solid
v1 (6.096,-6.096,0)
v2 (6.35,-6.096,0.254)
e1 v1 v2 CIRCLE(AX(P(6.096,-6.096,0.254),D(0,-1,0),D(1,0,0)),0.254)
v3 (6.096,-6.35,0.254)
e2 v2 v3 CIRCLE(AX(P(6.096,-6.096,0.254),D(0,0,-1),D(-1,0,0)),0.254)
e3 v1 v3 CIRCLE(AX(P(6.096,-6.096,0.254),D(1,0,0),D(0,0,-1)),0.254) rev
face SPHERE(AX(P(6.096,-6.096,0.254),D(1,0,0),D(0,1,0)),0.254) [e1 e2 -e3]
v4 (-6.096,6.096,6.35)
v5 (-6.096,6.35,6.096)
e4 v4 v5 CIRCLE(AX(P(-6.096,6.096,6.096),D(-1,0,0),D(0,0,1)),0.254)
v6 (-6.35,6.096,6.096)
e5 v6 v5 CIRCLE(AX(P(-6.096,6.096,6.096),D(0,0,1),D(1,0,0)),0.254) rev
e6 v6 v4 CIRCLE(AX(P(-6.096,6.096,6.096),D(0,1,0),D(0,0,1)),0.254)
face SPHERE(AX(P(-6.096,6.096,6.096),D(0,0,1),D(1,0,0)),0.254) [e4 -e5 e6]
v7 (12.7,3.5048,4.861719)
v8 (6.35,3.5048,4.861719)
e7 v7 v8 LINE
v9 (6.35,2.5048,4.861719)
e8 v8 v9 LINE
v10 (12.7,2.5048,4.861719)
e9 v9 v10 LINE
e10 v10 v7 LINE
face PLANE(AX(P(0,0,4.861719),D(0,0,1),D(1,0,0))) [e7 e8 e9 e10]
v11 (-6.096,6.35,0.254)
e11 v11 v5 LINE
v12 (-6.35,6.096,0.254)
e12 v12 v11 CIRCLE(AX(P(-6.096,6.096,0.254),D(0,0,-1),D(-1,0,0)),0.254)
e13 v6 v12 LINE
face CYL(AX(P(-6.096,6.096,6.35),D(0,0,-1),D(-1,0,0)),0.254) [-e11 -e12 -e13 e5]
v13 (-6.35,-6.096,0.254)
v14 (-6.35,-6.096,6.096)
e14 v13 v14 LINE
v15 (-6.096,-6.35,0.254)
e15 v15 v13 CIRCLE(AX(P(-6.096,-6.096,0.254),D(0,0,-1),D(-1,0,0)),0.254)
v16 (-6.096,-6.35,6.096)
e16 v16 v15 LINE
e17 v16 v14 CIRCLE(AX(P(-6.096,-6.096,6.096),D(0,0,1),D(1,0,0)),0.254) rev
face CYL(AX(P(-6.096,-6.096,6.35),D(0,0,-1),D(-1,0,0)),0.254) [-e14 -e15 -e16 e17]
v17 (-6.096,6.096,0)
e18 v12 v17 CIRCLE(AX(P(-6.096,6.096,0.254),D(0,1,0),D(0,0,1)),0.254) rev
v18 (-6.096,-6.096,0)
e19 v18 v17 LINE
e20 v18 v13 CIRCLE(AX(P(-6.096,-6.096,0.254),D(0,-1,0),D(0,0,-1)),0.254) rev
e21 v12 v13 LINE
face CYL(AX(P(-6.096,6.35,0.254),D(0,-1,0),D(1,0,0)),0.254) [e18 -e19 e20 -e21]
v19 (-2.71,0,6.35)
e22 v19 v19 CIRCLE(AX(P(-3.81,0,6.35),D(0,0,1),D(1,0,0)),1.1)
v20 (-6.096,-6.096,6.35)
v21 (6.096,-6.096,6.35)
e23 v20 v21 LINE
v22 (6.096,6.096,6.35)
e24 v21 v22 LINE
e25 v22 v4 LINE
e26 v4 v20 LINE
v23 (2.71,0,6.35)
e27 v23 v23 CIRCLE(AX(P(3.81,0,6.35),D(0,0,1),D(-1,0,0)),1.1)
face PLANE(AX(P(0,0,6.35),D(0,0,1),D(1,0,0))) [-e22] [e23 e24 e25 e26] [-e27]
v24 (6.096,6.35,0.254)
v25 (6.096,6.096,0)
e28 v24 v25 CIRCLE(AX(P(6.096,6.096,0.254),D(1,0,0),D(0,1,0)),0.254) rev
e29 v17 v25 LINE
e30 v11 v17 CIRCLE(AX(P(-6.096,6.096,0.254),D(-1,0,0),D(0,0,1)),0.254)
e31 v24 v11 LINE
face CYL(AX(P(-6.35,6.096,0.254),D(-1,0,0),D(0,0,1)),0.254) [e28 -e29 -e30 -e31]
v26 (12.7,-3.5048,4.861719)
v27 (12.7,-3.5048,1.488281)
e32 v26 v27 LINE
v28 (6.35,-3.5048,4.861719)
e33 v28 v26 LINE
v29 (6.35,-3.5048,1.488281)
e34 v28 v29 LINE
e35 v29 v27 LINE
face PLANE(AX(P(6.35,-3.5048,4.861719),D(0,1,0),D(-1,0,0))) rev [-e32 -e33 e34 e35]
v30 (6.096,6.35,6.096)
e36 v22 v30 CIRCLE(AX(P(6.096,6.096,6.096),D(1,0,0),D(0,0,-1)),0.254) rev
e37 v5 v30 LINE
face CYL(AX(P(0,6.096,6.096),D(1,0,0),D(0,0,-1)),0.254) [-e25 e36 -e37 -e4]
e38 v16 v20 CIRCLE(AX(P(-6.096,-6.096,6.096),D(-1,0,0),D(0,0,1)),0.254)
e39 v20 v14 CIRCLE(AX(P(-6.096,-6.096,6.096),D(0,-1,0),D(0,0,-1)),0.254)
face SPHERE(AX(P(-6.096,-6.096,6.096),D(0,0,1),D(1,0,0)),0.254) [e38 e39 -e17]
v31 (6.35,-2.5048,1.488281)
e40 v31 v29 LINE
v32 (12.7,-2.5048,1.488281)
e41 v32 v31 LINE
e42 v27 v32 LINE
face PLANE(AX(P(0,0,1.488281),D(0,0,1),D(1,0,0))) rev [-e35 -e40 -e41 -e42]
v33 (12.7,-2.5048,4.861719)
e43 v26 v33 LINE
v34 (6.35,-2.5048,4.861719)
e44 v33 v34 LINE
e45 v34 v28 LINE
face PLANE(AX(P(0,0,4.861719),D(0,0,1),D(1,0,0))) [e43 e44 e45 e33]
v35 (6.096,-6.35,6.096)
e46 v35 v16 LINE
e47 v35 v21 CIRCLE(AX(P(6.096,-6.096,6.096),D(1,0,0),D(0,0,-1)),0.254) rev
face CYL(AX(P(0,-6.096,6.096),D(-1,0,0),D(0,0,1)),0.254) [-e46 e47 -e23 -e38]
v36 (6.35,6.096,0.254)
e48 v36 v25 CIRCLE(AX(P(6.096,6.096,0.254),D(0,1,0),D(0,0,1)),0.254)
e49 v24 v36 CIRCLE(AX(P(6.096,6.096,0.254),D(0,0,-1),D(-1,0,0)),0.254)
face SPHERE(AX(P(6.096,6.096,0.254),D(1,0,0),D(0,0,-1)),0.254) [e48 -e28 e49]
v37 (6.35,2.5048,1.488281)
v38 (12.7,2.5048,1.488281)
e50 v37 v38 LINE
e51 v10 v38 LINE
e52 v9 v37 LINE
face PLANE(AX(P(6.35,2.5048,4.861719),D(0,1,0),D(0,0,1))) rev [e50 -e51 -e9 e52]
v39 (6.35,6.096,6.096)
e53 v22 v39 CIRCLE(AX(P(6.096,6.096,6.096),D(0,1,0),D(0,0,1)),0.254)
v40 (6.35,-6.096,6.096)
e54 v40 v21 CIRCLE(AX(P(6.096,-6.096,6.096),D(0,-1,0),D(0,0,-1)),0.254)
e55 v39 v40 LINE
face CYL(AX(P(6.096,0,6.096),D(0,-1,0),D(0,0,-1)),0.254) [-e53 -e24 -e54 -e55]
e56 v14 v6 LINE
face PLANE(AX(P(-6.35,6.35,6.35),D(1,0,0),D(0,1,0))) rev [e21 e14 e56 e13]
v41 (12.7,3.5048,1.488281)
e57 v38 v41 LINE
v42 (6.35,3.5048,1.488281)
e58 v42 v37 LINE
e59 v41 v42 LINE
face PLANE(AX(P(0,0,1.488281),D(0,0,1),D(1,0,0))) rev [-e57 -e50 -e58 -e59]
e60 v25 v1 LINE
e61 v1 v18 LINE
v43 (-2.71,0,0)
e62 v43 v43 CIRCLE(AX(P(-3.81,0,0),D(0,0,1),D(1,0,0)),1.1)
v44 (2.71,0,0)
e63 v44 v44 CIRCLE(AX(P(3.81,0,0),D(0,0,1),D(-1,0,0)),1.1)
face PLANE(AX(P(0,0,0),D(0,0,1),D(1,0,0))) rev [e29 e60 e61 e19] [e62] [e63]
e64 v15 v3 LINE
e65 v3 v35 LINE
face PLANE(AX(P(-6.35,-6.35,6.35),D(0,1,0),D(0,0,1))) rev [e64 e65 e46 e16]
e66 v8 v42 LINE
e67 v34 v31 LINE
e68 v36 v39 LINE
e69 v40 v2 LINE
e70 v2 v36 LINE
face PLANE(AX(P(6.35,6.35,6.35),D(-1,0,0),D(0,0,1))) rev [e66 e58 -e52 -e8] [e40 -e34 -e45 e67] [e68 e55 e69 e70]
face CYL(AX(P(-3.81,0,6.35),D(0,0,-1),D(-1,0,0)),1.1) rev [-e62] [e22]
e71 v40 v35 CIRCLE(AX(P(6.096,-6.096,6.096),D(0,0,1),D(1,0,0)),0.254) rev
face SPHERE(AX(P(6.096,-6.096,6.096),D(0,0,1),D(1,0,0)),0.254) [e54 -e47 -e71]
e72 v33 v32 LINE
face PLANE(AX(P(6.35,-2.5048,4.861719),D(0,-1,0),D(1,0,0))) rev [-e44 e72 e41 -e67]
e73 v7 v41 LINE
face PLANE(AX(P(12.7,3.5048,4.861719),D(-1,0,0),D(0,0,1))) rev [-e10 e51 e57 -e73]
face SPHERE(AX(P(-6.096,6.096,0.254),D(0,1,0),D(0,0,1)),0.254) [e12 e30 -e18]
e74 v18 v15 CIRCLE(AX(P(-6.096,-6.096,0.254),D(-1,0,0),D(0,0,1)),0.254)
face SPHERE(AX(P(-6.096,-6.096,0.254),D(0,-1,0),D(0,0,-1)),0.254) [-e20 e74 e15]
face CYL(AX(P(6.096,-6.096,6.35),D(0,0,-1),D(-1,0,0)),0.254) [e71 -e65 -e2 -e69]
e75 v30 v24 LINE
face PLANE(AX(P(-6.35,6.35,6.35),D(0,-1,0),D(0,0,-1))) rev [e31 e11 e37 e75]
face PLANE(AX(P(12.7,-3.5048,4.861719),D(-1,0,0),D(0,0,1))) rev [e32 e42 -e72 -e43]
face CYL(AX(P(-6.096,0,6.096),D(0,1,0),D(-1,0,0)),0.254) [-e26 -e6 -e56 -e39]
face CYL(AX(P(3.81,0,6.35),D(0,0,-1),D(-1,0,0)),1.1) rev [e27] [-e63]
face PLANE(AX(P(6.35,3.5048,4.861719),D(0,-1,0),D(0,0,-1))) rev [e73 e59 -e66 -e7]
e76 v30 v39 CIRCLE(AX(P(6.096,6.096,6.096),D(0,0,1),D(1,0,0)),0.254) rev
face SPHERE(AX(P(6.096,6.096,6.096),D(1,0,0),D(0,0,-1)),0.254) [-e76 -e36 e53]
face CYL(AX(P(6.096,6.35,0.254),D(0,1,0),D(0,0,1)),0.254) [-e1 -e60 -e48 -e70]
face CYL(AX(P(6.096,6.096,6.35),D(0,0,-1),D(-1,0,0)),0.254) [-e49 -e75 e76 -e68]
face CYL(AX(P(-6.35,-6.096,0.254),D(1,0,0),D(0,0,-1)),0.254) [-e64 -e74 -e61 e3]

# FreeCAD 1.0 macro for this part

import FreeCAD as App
import Part
import Sketcher
Q = App.Units.Quantity


def edges_at(feature, points):
    """Names of the edges that pass closest to the given points."""
    edges = feature.Shape.Edges
    near = lambda p: min(range(len(edges)), key=lambda i: edges[i].distToShape(Part.Vertex(*p))[0])
    return sorted({f"Edge{near(p) + 1}" for p in points})

doc = App.newDocument("Part")
params = doc.addObject("Spreadsheet::Sheet", "Params")
for row, (alias, value) in enumerate([
    ("sketch1_width", "0.5 in"),
    ("pad1_length", "0.25 in"),
    ("sketch2_width", "0.25 in"),
    ("pad2_length", "3.373438 mm"),
    ("fillet_radius", "0.01 in"),
], start=1):
    params.set(f"A{row}", alias)
    params.set(f"B{row}", "=" + value)
    params.setAlias(f"B{row}", alias)

body = doc.addObject("PartDesign::Body", "Body")

# Sketch on XY plane
sketch1 = body.newObject("Sketcher::SketchObject", "Sketch")
sketch1.AttachmentSupport = (doc.getObject("XY_Plane"), [""])
sketch1.MapMode = "FlatFace"
sketch1.addGeometry(Part.LineSegment(App.Vector(-6.35, 6.35, 0), App.Vector(-6.35, -6.35, 0)), False)
sketch1.addGeometry(Part.LineSegment(App.Vector(-6.35, -6.35, 0), App.Vector(6.35, -6.35, 0)), False)
sketch1.addGeometry(Part.LineSegment(App.Vector(6.35, -6.35, 0), App.Vector(6.35, 6.35, 0)), False)
sketch1.addGeometry(Part.LineSegment(App.Vector(6.35, 6.35, 0), App.Vector(-6.35, 6.35, 0)), False)
sketch1.addGeometry(Part.Circle(App.Vector(-3.81, 0, 0), App.Vector(0, 0, 1), 1.1), False)
sketch1.addGeometry(Part.Circle(App.Vector(3.81, 0, 0), App.Vector(0, 0, 1), 1.1), False)
sketch1.addConstraint(Sketcher.Constraint("Coincident", 0, 2, 1, 1))
sketch1.addConstraint(Sketcher.Constraint("Coincident", 1, 2, 2, 1))
sketch1.addConstraint(Sketcher.Constraint("Coincident", 2, 2, 3, 1))
sketch1.addConstraint(Sketcher.Constraint("Coincident", 3, 2, 0, 1))
sketch1.addConstraint(Sketcher.Constraint("Vertical", 0))
sketch1.addConstraint(Sketcher.Constraint("Horizontal", 1))
sketch1.addConstraint(Sketcher.Constraint("Vertical", 2))
sketch1.addConstraint(Sketcher.Constraint("Horizontal", 3))
sketch1.addConstraint(Sketcher.Constraint("Equal", 4, 5))
sketch1.addConstraint(Sketcher.Constraint("Symmetric", 4, 3, 5, 3, -1, 1))
sketch1.addConstraint(Sketcher.Constraint("Symmetric", 0, 2, 2, 2, -1, 1))
sketch1.addConstraint(Sketcher.Constraint("PointOnObject", 4, 3, -1))
sketch1.addConstraint(Sketcher.Constraint("Equal", 3, 0))
sketch1.addConstraint(Sketcher.Constraint("DistanceX", 1, 1, 1, 2, Q("0.5 in")))
sketch1.addConstraint(Sketcher.Constraint("DistanceX", 4, 3, 5, 3, Q("0.3 in")))
sketch1.addConstraint(Sketcher.Constraint("Diameter", 4, 2.2))
sketch1.setExpression("Constraints[13]", "Params.sketch1_width")
pad1 = body.newObject("PartDesign::Pad", "Pad")
pad1.Profile = sketch1
pad1.setExpression("Length", "Params.pad1_length")

# Sketch on XY plane
sketch2 = body.newObject("Sketcher::SketchObject", "Sketch001")
sketch2.AttachmentSupport = (doc.getObject("XY_Plane"), [""])
sketch2.MapMode = "FlatFace"
sketch2.AttachmentOffset = App.Placement(App.Vector(0, 0, 0.125 * 25.4), App.Rotation())
sketch2.addGeometry(Part.LineSegment(App.Vector(6.35, 3.5048, 0), App.Vector(6.35, 2.5048, 0)), False)
sketch2.addGeometry(Part.LineSegment(App.Vector(6.35, 2.5048, 0), App.Vector(12.7, 2.5048, 0)), False)
sketch2.addGeometry(Part.LineSegment(App.Vector(12.7, 2.5048, 0), App.Vector(12.7, 3.5048, 0)), False)
sketch2.addGeometry(Part.LineSegment(App.Vector(12.7, 3.5048, 0), App.Vector(6.35, 3.5048, 0)), False)
sketch2.addGeometry(Part.LineSegment(App.Vector(6.35, -2.5048, 0), App.Vector(6.35, -3.5048, 0)), False)
sketch2.addGeometry(Part.LineSegment(App.Vector(6.35, -3.5048, 0), App.Vector(12.7, -3.5048, 0)), False)
sketch2.addGeometry(Part.LineSegment(App.Vector(12.7, -3.5048, 0), App.Vector(12.7, -2.5048, 0)), False)
sketch2.addGeometry(Part.LineSegment(App.Vector(12.7, -2.5048, 0), App.Vector(6.35, -2.5048, 0)), False)
sketch2.addConstraint(Sketcher.Constraint("Coincident", 0, 2, 1, 1))
sketch2.addConstraint(Sketcher.Constraint("Coincident", 1, 2, 2, 1))
sketch2.addConstraint(Sketcher.Constraint("Coincident", 2, 2, 3, 1))
sketch2.addConstraint(Sketcher.Constraint("Coincident", 3, 2, 0, 1))
sketch2.addConstraint(Sketcher.Constraint("Coincident", 4, 2, 5, 1))
sketch2.addConstraint(Sketcher.Constraint("Coincident", 5, 2, 6, 1))
sketch2.addConstraint(Sketcher.Constraint("Coincident", 6, 2, 7, 1))
sketch2.addConstraint(Sketcher.Constraint("Coincident", 7, 2, 4, 1))
sketch2.addConstraint(Sketcher.Constraint("Vertical", 0))
sketch2.addConstraint(Sketcher.Constraint("Horizontal", 1))
sketch2.addConstraint(Sketcher.Constraint("Vertical", 2))
sketch2.addConstraint(Sketcher.Constraint("Horizontal", 3))
sketch2.addConstraint(Sketcher.Constraint("Vertical", 4))
sketch2.addConstraint(Sketcher.Constraint("Horizontal", 5))
sketch2.addConstraint(Sketcher.Constraint("Vertical", 6))
sketch2.addConstraint(Sketcher.Constraint("Horizontal", 7))
sketch2.addConstraint(Sketcher.Constraint("Symmetric", 3, 2, 4, 2, -1))
sketch2.addConstraint(Sketcher.Constraint("Symmetric", 1, 2, 6, 2, -1))
sketch2.addConstraint(Sketcher.Constraint("DistanceX", 1, 1, 1, 2, Q("0.25 in")))
sketch2.addConstraint(Sketcher.Constraint("DistanceX", -1, 1, 1, 2, Q("0.5 in")))
sketch2.addConstraint(Sketcher.Constraint("DistanceY", 0, 2, 0, 1, 1.0))
sketch2.addConstraint(Sketcher.Constraint("DistanceY", -1, 1, 0, 2, 2.5048))
sketch2.setExpression("Constraints[18]", "Params.sketch2_width")
pad2 = body.newObject("PartDesign::Pad", "Pad001")
pad2.Profile = sketch2
pad2.setExpression("Length", "Params.pad2_length")
pad2.Midplane = True
doc.recompute()

fillet = body.newObject("PartDesign::Fillet", "Fillet")
fillet.Base = (pad2, edges_at(pad2, [
    (-6.35, 0, 6.35),
    (0, -6.35, 6.35),
    (6.35, 0, 6.35),
    (0, -6.35, 0),
    (-6.35, 0, 0),
    (0, 6.35, 0),
    (6.35, 0, 0),
    (6.35, -6.35, 3.175),
    (-6.35, -6.35, 3.175),
    (-6.35, 6.35, 3.175),
    (6.35, 6.35, 3.175),
    (0, 6.35, 6.35),
]))
fillet.setExpression("Radius", "Params.fillet_radius")

doc.recompute()
